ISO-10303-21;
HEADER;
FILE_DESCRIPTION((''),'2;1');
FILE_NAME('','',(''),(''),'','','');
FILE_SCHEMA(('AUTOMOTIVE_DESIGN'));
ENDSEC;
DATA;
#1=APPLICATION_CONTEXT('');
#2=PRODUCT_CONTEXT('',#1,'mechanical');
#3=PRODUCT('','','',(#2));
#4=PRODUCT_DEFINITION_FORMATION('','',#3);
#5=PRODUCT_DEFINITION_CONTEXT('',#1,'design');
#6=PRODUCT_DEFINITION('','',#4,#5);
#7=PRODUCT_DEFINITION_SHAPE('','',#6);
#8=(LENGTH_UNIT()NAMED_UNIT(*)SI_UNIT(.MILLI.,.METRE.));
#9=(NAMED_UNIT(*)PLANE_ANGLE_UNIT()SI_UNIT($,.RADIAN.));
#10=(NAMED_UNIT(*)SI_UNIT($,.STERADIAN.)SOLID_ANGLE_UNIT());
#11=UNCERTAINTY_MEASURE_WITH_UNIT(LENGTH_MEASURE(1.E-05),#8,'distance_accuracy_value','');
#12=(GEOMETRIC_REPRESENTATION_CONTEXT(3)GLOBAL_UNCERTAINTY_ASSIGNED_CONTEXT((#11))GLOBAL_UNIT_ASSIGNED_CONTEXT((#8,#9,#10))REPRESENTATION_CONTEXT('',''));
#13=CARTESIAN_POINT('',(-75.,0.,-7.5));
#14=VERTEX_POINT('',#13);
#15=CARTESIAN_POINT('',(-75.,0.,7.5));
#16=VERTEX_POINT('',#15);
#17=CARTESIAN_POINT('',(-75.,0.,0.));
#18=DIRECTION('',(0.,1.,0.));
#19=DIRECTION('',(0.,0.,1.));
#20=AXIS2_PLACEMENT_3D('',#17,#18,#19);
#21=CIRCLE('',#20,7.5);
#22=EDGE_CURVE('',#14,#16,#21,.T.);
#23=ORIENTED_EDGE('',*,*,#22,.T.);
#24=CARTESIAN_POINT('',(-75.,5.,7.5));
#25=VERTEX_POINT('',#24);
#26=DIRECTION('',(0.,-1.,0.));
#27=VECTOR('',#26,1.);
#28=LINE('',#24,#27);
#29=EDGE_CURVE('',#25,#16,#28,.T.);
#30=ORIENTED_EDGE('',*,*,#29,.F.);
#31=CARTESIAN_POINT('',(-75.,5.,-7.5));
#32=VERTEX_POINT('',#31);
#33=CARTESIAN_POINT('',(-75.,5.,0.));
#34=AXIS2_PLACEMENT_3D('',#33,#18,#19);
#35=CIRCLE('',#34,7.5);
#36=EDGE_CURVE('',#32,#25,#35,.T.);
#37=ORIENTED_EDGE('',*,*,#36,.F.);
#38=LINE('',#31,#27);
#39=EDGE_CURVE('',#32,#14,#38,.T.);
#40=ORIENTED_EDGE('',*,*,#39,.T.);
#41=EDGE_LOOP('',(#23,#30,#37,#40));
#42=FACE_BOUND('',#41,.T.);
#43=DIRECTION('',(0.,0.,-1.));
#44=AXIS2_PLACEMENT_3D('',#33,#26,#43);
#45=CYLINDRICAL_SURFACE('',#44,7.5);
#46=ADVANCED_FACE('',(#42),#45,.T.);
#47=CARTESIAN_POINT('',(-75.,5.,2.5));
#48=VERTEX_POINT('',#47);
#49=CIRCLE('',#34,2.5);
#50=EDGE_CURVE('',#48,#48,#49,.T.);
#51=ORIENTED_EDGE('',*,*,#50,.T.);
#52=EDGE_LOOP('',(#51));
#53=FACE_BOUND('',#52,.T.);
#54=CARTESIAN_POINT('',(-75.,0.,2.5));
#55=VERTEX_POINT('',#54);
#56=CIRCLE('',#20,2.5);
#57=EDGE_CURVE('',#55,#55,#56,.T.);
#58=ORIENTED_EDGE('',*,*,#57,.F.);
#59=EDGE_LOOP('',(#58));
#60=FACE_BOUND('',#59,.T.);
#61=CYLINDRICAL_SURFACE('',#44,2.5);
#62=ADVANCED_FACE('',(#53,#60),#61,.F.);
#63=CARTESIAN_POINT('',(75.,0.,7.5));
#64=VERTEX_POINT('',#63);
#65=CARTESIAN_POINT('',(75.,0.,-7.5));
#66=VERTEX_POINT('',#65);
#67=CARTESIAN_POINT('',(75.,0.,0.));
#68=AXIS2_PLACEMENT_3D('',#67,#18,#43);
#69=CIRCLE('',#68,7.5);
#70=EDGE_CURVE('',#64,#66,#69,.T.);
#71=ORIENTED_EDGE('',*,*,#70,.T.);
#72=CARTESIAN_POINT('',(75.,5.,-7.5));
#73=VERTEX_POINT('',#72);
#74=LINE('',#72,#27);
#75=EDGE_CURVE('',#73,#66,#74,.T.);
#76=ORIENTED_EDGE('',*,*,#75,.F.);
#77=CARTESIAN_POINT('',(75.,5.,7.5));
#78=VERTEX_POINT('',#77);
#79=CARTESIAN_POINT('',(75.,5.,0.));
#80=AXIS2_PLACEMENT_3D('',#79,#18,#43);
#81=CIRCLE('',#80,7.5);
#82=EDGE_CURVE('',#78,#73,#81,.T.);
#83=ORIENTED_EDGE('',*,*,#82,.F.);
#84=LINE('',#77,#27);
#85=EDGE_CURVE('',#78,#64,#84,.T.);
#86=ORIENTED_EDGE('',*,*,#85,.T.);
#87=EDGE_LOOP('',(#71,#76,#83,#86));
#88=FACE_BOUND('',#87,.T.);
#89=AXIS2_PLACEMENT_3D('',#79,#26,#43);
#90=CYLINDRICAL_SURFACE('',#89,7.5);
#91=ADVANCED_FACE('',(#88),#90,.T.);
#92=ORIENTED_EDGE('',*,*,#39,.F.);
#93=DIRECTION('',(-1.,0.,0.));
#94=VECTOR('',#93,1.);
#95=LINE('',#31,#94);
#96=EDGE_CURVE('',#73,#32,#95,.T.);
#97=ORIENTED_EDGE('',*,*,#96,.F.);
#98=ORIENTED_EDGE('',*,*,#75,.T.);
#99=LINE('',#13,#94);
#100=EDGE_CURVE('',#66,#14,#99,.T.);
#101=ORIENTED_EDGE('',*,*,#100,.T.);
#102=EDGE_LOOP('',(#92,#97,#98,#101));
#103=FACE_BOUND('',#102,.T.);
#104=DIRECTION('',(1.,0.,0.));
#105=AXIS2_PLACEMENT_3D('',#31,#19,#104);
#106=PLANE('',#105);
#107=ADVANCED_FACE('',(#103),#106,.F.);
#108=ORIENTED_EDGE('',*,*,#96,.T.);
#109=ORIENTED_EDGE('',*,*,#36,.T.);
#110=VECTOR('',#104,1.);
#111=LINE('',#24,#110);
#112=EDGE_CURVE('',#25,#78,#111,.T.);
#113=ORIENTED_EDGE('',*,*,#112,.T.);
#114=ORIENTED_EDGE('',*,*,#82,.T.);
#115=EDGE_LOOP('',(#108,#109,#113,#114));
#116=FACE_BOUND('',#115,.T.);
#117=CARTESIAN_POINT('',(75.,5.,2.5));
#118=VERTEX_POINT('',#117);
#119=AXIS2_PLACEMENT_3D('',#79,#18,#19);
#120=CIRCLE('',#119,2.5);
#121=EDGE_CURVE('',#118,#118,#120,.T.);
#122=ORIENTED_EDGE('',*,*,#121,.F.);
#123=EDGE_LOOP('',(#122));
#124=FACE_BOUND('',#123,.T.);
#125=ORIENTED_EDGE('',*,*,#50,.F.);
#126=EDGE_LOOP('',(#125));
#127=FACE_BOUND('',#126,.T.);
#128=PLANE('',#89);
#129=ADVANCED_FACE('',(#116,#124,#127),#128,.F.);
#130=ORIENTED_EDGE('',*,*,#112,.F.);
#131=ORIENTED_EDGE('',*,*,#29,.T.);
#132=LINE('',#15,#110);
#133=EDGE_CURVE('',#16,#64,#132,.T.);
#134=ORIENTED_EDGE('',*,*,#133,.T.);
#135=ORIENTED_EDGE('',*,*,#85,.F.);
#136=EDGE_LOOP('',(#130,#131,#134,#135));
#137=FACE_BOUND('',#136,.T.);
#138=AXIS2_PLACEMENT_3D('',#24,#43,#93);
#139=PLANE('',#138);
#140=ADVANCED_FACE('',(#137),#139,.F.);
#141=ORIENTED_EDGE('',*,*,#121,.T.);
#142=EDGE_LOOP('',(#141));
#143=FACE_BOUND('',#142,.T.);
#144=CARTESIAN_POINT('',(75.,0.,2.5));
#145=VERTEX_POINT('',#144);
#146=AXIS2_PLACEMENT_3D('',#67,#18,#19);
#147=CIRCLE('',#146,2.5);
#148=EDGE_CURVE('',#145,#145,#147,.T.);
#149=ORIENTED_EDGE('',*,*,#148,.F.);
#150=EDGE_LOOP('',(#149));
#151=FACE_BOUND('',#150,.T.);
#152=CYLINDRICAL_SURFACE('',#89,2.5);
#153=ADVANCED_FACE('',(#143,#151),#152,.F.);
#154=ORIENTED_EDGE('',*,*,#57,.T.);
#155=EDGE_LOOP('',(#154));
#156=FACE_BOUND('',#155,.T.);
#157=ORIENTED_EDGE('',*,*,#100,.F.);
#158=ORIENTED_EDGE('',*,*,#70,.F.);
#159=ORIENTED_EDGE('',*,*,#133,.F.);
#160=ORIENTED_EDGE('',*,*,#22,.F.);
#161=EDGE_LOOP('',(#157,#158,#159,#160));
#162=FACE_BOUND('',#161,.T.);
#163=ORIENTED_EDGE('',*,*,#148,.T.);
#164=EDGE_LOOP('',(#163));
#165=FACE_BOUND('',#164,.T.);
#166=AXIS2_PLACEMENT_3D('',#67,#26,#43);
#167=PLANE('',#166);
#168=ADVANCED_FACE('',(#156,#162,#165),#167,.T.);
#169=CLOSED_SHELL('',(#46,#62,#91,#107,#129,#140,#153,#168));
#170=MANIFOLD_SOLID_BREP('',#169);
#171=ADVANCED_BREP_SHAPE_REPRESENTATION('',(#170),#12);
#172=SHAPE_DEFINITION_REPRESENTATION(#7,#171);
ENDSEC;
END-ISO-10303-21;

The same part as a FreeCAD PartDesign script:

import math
import FreeCAD as App
import Part
import Sketcher

V = App.Vector
Q = App.Units.Quantity

doc = App.newDocument("Part")
params = doc.addObject("Spreadsheet::Sheet", "Params")
for row, (alias, value) in enumerate([
    ("sketch1_diameter", "5 mm"),
    ("sketch1_radius", "7.5 mm"),
    ("sketch1_width", "150 mm"),
    ("pad1_length", "5 mm"),
], start=1):
    params.set(f"A{row}", alias)
    params.set(f"B{row}", "=" + value)
    params.setAlias(f"B{row}", alias)

body = doc.addObject("PartDesign::Body", "Body")

# Sketch on XZ plane
sketch1 = body.newObject("Sketcher::SketchObject", "Sketch")
sketch1.AttachmentSupport = (doc.getObject("XZ_Plane"), [""])
sketch1.MapMode = "FlatFace"
sketch1.addGeometry([
    Part.LineSegment(V(75, -7.5, 0), V(-75, -7.5, 0)),  # 0
    Part.ArcOfCircle(Part.Circle(V(-75, 0, 0), V(0, 0, 1), 7.5), math.radians(90), math.radians(270)),  # 1
    Part.LineSegment(V(-75, 7.5, 0), V(75, 7.5, 0)),  # 2
    Part.ArcOfCircle(Part.Circle(V(75, 0, 0), V(0, 0, 1), 7.5), math.radians(-90), math.radians(90)),  # 3
    Part.Circle(V(75, 0, 0), V(0, 0, 1), 2.5),  # 4
    Part.Circle(V(-75, 0, 0), V(0, 0, 1), 2.5),  # 5
], False)
sketch1.addConstraint([
    Sketcher.Constraint("Tangent", 0, 2, 1, 2),
    Sketcher.Constraint("Tangent", 1, 1, 2, 1),
    Sketcher.Constraint("Tangent", 2, 2, 3, 2),
    Sketcher.Constraint("Tangent", 3, 1, 0, 1),
    Sketcher.Constraint("Horizontal", 0),
    Sketcher.Constraint("Horizontal", 2),
    Sketcher.Constraint("Coincident", 4, 3, 3, 3),
    Sketcher.Constraint("Coincident", 5, 3, 1, 3),
    Sketcher.Constraint("Equal", 4, 5),
    Sketcher.Constraint("Symmetric", 1, 3, 3, 3, -1, 1),
    Sketcher.Constraint("Diameter", 4, Q("5 mm")),
    Sketcher.Constraint("Radius", 1, Q("7.5 mm")),
    Sketcher.Constraint("DistanceX", 0, 2, 0, 1, Q("150 mm")),
])
sketch1.setExpression("Constraints[10]", "Params.sketch1_diameter")
sketch1.setExpression("Constraints[11]", "Params.sketch1_radius")
sketch1.setExpression("Constraints[12]", "Params.sketch1_width")
pad1 = body.newObject("PartDesign::Pad", "Pad")
pad1.Profile = sketch1
pad1.setExpression("Length", "Params.pad1_length")
pad1.Reversed = True

doc.recompute()
